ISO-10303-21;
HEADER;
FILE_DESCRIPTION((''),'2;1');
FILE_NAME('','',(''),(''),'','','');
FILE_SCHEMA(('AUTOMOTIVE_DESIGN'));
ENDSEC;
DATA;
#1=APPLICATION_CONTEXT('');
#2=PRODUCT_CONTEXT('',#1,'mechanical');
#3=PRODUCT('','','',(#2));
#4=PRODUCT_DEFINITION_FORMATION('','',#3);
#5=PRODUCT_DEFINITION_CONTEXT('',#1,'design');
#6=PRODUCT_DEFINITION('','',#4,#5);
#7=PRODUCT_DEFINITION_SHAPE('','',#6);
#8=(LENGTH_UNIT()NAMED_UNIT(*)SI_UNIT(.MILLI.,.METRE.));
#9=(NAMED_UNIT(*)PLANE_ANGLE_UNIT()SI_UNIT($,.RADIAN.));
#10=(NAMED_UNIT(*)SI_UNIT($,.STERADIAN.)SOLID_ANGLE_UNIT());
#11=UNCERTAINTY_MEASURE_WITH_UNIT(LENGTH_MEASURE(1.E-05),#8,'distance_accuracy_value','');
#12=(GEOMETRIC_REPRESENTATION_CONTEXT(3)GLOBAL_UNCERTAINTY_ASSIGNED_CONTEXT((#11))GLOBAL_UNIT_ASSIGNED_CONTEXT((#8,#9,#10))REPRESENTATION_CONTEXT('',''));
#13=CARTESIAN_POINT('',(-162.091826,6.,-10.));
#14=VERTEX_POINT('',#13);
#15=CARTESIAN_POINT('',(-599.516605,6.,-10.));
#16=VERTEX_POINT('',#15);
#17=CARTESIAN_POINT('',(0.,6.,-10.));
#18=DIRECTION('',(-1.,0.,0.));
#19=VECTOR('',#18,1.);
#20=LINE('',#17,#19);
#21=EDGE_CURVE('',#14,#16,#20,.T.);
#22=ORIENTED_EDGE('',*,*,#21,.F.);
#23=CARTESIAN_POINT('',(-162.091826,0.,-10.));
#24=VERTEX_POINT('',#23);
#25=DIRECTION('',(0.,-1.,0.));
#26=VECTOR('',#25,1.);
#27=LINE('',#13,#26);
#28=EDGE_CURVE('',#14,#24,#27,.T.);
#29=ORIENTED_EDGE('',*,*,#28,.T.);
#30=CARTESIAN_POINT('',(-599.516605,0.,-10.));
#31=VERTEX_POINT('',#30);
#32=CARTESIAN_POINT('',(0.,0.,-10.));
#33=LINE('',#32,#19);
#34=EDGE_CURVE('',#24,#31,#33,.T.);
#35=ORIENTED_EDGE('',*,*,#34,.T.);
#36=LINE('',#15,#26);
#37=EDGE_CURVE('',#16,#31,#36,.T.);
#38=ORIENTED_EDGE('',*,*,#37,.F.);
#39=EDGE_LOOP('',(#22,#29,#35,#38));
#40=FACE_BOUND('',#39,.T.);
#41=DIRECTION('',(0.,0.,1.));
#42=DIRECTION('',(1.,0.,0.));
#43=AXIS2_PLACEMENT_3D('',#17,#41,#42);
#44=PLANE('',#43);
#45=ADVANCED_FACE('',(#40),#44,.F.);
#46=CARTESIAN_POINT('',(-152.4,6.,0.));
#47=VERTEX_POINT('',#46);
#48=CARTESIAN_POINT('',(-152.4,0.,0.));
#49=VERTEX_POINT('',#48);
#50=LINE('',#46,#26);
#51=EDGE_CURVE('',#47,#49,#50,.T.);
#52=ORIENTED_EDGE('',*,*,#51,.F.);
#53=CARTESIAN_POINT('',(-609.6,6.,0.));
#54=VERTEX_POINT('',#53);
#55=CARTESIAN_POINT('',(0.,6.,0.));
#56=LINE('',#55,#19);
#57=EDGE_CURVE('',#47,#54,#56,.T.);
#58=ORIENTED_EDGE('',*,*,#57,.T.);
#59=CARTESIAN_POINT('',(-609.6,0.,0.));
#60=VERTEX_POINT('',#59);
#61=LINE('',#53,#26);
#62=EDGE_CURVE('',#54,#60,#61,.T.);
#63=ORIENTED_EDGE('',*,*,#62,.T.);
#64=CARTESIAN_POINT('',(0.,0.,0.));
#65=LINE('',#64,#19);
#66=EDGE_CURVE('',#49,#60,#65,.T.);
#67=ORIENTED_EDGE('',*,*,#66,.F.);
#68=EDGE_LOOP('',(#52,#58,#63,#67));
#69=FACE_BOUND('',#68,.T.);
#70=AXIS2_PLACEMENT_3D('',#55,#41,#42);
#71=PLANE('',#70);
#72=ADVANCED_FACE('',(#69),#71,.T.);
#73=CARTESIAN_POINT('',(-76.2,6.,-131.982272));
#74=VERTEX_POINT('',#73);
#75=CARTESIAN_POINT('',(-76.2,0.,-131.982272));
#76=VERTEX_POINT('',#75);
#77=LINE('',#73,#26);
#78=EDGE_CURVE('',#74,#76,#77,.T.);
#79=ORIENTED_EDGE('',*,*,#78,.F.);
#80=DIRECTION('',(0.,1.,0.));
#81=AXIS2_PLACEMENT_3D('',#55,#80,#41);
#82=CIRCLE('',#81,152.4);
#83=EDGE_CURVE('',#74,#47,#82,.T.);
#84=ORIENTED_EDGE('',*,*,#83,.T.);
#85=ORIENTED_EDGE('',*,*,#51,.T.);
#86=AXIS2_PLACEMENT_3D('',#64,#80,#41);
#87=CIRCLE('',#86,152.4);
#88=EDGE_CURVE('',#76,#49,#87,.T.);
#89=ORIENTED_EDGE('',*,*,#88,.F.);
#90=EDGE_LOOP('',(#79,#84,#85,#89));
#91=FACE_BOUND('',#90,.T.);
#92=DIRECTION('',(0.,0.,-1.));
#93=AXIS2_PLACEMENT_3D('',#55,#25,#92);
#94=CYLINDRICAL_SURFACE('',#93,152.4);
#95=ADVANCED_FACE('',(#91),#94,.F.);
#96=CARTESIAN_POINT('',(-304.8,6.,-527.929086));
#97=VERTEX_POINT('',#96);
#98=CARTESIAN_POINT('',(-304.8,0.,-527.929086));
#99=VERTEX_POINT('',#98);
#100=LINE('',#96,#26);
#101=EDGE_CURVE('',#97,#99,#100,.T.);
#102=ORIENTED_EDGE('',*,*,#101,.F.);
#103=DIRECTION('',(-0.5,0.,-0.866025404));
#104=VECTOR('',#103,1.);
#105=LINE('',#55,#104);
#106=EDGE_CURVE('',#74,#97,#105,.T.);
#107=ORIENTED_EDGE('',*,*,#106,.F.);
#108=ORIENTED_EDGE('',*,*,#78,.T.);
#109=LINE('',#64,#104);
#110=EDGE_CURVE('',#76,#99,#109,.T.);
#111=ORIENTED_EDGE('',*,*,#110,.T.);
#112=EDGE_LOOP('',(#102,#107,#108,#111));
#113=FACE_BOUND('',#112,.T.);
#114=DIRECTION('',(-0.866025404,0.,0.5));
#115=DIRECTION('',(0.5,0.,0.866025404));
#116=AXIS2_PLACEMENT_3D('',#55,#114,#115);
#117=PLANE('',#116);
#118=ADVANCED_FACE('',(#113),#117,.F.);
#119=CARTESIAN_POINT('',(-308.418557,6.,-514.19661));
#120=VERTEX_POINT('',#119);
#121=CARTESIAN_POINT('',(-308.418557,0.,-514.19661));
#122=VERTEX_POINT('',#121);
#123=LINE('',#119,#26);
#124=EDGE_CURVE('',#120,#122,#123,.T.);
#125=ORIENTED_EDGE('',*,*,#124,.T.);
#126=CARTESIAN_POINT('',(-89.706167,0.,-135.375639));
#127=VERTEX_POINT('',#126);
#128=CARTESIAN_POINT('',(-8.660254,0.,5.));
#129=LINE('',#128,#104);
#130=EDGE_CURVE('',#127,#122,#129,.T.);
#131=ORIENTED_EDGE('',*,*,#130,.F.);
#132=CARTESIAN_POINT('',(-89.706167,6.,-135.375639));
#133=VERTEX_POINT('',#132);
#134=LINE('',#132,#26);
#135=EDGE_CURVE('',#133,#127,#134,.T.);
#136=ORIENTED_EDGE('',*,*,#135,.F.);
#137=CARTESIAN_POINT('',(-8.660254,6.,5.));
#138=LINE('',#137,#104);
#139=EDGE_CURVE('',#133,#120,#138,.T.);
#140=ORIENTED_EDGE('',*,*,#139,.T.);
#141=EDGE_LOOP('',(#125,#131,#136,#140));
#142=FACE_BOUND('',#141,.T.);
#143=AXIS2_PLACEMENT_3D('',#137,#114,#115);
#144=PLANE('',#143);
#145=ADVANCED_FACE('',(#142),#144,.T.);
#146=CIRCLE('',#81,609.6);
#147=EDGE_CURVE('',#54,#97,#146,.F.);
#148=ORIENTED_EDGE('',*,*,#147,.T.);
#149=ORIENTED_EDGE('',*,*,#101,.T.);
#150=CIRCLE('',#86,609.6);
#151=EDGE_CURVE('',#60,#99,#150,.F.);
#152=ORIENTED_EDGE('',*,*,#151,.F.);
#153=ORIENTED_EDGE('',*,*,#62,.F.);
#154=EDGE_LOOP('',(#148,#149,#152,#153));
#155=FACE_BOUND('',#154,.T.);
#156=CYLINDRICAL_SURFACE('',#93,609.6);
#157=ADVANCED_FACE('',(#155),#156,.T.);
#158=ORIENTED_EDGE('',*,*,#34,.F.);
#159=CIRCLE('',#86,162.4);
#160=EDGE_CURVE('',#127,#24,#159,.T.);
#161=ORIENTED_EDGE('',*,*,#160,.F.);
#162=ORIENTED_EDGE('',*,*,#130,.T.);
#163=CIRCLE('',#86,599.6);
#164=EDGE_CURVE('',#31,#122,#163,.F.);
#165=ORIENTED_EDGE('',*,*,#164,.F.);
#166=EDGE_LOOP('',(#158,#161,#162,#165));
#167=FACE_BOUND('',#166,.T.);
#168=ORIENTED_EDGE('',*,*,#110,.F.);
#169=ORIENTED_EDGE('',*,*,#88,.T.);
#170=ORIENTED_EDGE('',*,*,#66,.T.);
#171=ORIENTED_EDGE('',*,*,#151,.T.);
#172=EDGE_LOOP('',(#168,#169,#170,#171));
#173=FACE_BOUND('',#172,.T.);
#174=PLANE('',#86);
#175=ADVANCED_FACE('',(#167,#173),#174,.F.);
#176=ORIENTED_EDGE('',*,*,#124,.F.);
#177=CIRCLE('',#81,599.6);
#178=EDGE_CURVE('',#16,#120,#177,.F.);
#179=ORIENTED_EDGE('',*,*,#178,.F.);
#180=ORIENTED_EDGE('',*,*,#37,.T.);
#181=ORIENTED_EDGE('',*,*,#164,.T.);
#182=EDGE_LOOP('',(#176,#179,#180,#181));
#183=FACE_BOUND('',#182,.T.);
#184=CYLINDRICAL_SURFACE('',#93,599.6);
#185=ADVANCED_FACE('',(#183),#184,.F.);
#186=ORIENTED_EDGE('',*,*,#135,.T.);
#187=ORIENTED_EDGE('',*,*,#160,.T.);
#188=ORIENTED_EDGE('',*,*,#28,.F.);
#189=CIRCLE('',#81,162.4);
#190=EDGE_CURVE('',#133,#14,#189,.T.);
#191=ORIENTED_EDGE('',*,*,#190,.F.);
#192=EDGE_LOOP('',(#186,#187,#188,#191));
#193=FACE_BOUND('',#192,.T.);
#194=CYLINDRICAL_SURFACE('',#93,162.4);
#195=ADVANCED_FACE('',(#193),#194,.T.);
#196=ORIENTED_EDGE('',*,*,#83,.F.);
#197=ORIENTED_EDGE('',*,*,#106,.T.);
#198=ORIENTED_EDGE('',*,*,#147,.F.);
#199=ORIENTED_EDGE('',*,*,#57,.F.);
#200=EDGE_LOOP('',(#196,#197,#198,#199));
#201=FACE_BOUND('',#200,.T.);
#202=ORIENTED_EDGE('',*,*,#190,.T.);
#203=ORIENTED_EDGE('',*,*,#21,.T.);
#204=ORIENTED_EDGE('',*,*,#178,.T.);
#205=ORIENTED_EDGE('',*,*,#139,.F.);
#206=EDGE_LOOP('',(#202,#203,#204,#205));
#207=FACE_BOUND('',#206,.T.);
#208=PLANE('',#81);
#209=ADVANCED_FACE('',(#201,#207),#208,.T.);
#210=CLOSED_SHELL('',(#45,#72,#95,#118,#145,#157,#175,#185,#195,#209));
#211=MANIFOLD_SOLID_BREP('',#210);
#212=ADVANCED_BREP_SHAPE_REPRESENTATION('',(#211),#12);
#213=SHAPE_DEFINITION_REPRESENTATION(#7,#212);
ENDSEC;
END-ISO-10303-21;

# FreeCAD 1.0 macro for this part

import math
import FreeCAD as App
import Part
import Sketcher
Q = App.Units.Quantity

doc = App.newDocument("Part")
body = doc.addObject("PartDesign::Body", "Body")

sketch1 = doc.addObject("Sketcher::SketchObject", "Sketch")
body.addObject(sketch1)
sketch1.AttachmentSupport = (doc.XZ_Plane, [""])
sketch1.MapMode = "FlatFace"
sketch1.addGeometry([
    Part.ArcOfCircle(Part.Circle(App.Vector(0, 0, 0), App.Vector(0, 0, 1), 152.4), math.radians(180), math.radians(240)),
    Part.LineSegment(App.Vector(-76.2, -131.982272, 0), App.Vector(-304.8, -527.929086, 0)),
    Part.ArcOfCircle(Part.Circle(App.Vector(0, 0, 0), App.Vector(0, 0, 1), 609.6), math.radians(180), math.radians(240)),
    Part.LineSegment(App.Vector(-609.6, 0, 0), App.Vector(-152.4, 0, 0)),
    Part.ArcOfCircle(Part.Circle(App.Vector(0, 0, 0), App.Vector(0, 0, 1), 599.6), math.radians(-179.044389), math.radians(-150.477789)),
    Part.ArcOfCircle(Part.Circle(App.Vector(-0.000002, -0.000001, 0), App.Vector(0, 0, 1), 599.599998), math.radians(-150.477789), math.radians(-149.522211)),
    Part.ArcOfCircle(Part.Circle(App.Vector(0, 0, 0), App.Vector(0, 0, 1), 599.6), math.radians(-149.522211), math.radians(-120.955611)),
    Part.LineSegment(App.Vector(-308.418557, -514.19661, 0), App.Vector(-176.260254, -285.291715, 0)),
    Part.LineSegment(App.Vector(-176.260254, -285.291715, 0), App.Vector(-171.260254, -276.631461, 0)),
    Part.LineSegment(App.Vector(-171.260254, -276.631461, 0), App.Vector(-89.706167, -135.375639, 0)),
    Part.ArcOfCircle(Part.Circle(App.Vector(0, 0, 0), App.Vector(0, 0, 1), 162.4), math.radians(-176.469701), math.radians(-123.530299)),
    Part.LineSegment(App.Vector(-162.091826, -10, 0), App.Vector(-599.516605, -10, 0)),
], False)
sketch1.addConstraint([
    Sketcher.Constraint("Coincident", 0, 2, 1, 1),
    Sketcher.Constraint("Coincident", 1, 2, 2, 2),
    Sketcher.Constraint("Coincident", 2, 1, 3, 1),
    Sketcher.Constraint("Coincident", 3, 2, 0, 1),
    Sketcher.Constraint("Coincident", 4, 2, 5, 1),
    Sketcher.Constraint("Coincident", 5, 2, 6, 1),
    Sketcher.Constraint("Coincident", 6, 2, 7, 1),
    Sketcher.Constraint("Coincident", 7, 2, 8, 1),
    Sketcher.Constraint("Coincident", 8, 2, 9, 1),
    Sketcher.Constraint("Coincident", 9, 2, 10, 2),
    Sketcher.Constraint("Coincident", 10, 1, 11, 1),
    Sketcher.Constraint("Coincident", 11, 2, 4, 1),
    Sketcher.Constraint("Horizontal", 3),
    Sketcher.Constraint("Horizontal", 11),
    Sketcher.Constraint("Coincident", 0, 3, -1, 1),
    Sketcher.Constraint("Coincident", 2, 3, -1, 1),
    Sketcher.Constraint("Coincident", 4, 3, -1, 1),
    Sketcher.Constraint("Coincident", 5, 3, -1, 1),
    Sketcher.Constraint("Coincident", 6, 3, -1, 1),
    Sketcher.Constraint("Coincident", 10, 3, -1, 1),
    Sketcher.Constraint("PointOnObject", 3, 2, -1),
    Sketcher.Constraint("Parallel", 1, 7),
    Sketcher.Constraint("Parallel", 7, 8),
    Sketcher.Constraint("Parallel", 8, 9),
    Sketcher.Constraint("Radius", 0, 152.4),
    Sketcher.Constraint("Radius", 2, 609.6),
    Sketcher.Constraint("Radius", 4, 599.6),
    Sketcher.Constraint("Radius", 10, 162.4),
    Sketcher.Constraint("Angle", 1, Q("-120 deg")),
    Sketcher.Constraint("Distance", 8, 10.0),
    Sketcher.Constraint("DistanceY", 10, 1, -1, 1, 10.0),
    Sketcher.Constraint("DistanceX", 4, 2, 5, 2, 5.0),
    Sketcher.Constraint("DistanceX", 0, 2, -1, 1, 76.2),
    Sketcher.Constraint("DistanceY", 4, 2, -1, 1, 295.459449),
    Sketcher.Constraint("DistanceY", 8, 2, -1, 1, 276.631461),
    Sketcher.Constraint("DistanceY", 9, 2, -1, 1, 135.375639),
])
pad1 = doc.addObject("PartDesign::Pad", "Pad")
body.addObject(pad1)
pad1.Profile = sketch1
pad1.Length = 6
pad1.Reversed = True

doc.recompute()
